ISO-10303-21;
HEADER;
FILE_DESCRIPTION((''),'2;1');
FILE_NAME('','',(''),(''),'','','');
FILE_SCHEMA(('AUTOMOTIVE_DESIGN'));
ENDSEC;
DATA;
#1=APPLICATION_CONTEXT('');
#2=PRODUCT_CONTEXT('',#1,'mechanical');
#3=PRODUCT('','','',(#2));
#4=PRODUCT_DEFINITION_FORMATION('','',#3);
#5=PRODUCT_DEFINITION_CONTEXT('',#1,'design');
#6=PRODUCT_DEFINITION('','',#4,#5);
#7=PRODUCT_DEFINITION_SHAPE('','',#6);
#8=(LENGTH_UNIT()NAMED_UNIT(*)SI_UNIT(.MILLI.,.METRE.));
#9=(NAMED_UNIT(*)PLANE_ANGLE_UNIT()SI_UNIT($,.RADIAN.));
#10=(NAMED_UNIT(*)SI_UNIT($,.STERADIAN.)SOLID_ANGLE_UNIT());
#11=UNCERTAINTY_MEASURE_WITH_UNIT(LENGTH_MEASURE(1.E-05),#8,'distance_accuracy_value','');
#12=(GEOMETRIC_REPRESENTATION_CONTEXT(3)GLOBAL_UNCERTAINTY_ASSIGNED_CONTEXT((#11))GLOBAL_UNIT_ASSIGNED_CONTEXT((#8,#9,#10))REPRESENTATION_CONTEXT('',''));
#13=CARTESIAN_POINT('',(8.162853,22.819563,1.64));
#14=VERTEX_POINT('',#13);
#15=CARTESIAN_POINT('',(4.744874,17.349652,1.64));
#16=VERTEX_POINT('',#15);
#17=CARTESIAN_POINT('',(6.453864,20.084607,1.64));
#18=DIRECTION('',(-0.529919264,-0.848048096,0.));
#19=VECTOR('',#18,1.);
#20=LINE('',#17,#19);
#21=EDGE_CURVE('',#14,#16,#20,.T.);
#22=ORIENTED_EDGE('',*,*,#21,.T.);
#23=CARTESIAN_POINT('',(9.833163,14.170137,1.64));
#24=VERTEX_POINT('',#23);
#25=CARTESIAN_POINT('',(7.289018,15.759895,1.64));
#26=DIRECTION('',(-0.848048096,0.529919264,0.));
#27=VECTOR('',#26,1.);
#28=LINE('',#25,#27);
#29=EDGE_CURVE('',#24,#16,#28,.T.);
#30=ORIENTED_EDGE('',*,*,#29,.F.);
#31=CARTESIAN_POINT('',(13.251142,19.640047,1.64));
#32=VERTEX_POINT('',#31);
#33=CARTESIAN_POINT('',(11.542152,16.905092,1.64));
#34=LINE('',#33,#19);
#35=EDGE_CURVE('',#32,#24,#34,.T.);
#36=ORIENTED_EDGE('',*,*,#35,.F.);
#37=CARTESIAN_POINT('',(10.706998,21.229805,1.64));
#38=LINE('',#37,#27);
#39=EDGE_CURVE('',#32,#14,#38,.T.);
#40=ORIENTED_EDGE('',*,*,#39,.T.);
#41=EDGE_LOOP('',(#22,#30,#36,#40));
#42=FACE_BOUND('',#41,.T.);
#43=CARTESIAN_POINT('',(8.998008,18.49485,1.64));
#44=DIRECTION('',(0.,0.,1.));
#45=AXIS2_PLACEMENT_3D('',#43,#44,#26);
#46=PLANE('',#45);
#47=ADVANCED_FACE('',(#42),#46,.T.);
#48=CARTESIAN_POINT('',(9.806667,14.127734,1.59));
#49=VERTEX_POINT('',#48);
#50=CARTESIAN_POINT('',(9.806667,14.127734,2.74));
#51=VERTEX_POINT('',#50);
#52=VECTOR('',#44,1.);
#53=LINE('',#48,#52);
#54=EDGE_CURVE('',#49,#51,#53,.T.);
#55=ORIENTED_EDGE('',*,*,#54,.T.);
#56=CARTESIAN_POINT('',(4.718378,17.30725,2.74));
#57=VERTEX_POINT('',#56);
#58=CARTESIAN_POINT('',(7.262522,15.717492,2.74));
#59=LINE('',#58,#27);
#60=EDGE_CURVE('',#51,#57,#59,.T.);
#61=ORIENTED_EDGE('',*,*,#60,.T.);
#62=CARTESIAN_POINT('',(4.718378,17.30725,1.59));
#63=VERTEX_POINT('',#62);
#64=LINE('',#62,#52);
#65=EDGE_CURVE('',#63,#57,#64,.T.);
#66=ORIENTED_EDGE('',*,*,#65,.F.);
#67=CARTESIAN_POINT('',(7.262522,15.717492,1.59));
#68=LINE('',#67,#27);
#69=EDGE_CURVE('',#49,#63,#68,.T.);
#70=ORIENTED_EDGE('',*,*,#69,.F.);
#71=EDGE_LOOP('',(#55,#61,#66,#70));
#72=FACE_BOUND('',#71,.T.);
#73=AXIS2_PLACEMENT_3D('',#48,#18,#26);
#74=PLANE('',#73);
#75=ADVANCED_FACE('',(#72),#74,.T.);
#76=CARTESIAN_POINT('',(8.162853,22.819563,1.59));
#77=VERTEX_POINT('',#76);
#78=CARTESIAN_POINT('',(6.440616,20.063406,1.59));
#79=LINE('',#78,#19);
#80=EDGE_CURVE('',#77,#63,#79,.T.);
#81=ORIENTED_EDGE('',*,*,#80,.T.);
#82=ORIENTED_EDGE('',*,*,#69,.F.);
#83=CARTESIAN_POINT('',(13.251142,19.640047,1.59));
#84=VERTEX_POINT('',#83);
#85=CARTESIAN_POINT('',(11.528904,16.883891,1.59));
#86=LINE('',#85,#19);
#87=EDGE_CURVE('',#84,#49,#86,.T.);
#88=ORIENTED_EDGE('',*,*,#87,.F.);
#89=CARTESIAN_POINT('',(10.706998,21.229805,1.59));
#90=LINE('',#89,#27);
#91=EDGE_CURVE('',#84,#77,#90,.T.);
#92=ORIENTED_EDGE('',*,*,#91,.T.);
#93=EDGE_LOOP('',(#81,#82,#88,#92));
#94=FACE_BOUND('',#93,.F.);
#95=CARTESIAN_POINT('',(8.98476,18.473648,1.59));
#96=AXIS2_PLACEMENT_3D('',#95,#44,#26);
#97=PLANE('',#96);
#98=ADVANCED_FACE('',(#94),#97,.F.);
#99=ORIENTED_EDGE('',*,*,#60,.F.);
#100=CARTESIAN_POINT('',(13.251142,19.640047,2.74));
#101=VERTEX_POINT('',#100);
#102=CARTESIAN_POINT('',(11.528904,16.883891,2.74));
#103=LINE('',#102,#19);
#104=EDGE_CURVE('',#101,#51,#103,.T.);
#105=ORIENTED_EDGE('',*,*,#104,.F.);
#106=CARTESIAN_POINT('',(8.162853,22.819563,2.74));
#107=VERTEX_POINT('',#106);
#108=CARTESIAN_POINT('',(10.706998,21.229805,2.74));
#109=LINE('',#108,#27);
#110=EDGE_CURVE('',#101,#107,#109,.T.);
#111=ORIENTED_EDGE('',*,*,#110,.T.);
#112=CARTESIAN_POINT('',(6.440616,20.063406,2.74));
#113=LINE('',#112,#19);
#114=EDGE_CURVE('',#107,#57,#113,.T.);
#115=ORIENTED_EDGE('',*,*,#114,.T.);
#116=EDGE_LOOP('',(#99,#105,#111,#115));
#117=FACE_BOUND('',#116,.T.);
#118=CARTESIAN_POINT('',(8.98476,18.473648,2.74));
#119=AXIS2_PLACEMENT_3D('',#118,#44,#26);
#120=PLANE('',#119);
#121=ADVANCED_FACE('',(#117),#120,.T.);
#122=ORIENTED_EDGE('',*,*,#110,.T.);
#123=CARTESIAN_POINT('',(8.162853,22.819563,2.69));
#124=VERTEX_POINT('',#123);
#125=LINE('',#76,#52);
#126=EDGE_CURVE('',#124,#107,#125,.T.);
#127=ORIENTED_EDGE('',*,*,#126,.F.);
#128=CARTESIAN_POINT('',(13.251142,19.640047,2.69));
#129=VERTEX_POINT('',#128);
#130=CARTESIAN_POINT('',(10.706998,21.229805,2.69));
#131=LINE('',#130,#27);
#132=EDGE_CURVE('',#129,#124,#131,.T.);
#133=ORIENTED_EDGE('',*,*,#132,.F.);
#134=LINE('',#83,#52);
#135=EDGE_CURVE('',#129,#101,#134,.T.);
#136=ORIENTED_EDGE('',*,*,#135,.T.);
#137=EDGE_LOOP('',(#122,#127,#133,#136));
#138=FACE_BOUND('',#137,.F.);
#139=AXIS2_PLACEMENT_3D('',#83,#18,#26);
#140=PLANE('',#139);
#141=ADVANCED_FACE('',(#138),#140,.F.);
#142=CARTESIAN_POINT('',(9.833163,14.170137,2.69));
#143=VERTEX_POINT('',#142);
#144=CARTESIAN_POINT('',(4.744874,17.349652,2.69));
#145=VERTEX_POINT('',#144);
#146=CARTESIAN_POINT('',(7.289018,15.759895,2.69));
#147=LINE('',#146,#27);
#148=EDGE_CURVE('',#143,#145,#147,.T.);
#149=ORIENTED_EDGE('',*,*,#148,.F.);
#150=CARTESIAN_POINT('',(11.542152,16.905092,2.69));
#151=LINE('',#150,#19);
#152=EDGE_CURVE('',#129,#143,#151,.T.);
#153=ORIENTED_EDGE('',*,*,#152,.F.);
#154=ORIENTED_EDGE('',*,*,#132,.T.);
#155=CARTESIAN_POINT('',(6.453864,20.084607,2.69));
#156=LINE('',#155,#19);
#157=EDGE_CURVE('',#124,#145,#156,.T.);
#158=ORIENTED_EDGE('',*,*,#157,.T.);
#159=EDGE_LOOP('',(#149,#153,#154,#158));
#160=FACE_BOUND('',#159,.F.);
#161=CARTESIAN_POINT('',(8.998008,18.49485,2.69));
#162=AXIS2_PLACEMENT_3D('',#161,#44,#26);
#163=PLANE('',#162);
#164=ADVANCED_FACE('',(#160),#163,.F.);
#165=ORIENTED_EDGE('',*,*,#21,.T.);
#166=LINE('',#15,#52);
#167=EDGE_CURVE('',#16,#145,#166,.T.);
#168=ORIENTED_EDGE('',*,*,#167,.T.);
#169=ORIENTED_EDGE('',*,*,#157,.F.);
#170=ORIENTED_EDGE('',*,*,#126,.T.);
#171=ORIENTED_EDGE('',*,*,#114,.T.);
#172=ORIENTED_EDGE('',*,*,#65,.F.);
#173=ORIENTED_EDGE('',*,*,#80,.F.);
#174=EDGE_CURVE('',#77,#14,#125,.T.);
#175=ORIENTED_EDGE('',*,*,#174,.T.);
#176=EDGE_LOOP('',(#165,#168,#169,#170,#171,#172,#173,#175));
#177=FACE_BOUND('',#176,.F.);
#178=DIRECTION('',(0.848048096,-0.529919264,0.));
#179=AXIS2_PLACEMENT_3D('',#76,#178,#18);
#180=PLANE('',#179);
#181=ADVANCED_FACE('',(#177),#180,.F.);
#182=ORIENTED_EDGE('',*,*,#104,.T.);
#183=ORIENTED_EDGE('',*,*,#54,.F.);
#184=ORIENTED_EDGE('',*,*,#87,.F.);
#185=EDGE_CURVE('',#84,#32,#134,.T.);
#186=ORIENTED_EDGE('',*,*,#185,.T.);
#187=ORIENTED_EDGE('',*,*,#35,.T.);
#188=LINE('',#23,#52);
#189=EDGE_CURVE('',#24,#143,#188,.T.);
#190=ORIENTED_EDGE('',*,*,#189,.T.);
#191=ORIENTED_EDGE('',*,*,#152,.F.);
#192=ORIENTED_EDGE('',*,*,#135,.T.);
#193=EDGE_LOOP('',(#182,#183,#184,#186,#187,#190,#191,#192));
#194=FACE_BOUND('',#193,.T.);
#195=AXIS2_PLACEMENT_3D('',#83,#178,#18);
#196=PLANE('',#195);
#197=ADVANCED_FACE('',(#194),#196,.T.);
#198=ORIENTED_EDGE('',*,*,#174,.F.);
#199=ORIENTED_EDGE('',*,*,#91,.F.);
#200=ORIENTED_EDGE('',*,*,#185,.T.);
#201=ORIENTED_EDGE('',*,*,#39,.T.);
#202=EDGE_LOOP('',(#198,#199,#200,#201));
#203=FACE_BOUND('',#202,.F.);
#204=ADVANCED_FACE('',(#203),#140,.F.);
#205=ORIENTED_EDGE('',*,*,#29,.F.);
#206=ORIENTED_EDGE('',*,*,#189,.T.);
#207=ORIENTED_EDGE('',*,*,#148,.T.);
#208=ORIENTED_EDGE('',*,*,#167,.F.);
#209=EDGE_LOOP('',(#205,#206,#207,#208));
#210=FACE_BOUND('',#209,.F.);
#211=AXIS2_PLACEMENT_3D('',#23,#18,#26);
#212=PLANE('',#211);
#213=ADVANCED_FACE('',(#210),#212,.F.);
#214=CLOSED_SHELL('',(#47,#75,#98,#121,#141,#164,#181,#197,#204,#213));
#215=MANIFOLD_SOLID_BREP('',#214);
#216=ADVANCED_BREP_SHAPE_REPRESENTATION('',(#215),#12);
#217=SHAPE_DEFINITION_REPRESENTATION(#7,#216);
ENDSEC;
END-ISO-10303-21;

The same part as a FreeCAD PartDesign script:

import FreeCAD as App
import Part
import Sketcher

V = App.Vector


def add_polygon(sketch, points):
    """Adds a closed chain of lines whose ends are joined by coincident constraints."""
    first, n = sketch.GeometryCount, len(points)
    for a, b in zip(points, points[1:] + points[:1]):
        sketch.addGeometry(Part.LineSegment(App.Vector(*a, 0), App.Vector(*b, 0)), False)
    for i in range(n):
        sketch.addConstraint(Sketcher.Constraint("Coincident", first + i, 2, first + (i + 1) % n, 1))

doc = App.newDocument("Part")
body = doc.addObject("PartDesign::Body", "Body")

# Sketch on XY plane
sketch1 = body.newObject("Sketcher::SketchObject", "Sketch")
sketch1.AttachmentSupport = (doc.getObject("XY_Plane"), [""])
sketch1.MapMode = "FlatFace"
sketch1.AttachmentOffset = App.Placement(V(0, 0, 0.05), App.Rotation())
add_polygon(sketch1, [(0, 6.45), (0, 0), (6, 0), (6, 6.45)])  # lines 0-3
sketch1.addConstraint([
    Sketcher.Constraint("Vertical", 0),
    Sketcher.Constraint("Horizontal", 1),
    Sketcher.Constraint("Vertical", 2),
    Sketcher.Constraint("Horizontal", 3),
    Sketcher.Constraint("Coincident", 0, 2, -1, 1),
    Sketcher.Constraint("DistanceX", 1, 1, 1, 2, 6.0),
    Sketcher.Constraint("DistanceY", 0, 2, 0, 1, 6.45),
])
pad1 = body.newObject("PartDesign::Pad", "Pad")
pad1.Profile = sketch1
pad1.Length = 1.05
body2 = doc.addObject("PartDesign::Body", "Body001")

# Sketch on XY plane
sketch2 = body2.newObject("Sketcher::SketchObject", "Sketch001")
sketch2.AttachmentSupport = (doc.getObject("XY_Plane001"), [""])
sketch2.MapMode = "FlatFace"
add_polygon(sketch2, [(0, 6.5), (0, 0), (6, 0), (6, 6.5)])  # lines 0-3
sketch2.addConstraint([
    Sketcher.Constraint("Vertical", 0),
    Sketcher.Constraint("Horizontal", 1),
    Sketcher.Constraint("Vertical", 2),
    Sketcher.Constraint("Horizontal", 3),
    Sketcher.Constraint("Coincident", 0, 2, -1, 1),
    Sketcher.Constraint("DistanceX", 1, 1, 1, 2, 6.0),
    Sketcher.Constraint("DistanceY", 0, 2, 0, 1, 6.5),
])
pad2 = body2.newObject("PartDesign::Pad", "Pad001")
pad2.Profile = sketch2
pad2.Length = 1.15
doc.recompute()

boolean = body2.newObject("PartDesign::Boolean", "Boolean")
boolean.Type = "Cut"
boolean.addObjects([body])
body3 = doc.addObject("PartDesign::Body", "Body002")
doc.recompute()

body2.Placement = App.Placement(V(13.251142, 19.640047, 1.59), App.Rotation(V(0, 0, 1), 148))
boolean2 = body3.newObject("PartDesign::Boolean", "Boolean001")
boolean2.Type = "Fuse"
boolean2.addObjects([body2])

doc.recompute()
